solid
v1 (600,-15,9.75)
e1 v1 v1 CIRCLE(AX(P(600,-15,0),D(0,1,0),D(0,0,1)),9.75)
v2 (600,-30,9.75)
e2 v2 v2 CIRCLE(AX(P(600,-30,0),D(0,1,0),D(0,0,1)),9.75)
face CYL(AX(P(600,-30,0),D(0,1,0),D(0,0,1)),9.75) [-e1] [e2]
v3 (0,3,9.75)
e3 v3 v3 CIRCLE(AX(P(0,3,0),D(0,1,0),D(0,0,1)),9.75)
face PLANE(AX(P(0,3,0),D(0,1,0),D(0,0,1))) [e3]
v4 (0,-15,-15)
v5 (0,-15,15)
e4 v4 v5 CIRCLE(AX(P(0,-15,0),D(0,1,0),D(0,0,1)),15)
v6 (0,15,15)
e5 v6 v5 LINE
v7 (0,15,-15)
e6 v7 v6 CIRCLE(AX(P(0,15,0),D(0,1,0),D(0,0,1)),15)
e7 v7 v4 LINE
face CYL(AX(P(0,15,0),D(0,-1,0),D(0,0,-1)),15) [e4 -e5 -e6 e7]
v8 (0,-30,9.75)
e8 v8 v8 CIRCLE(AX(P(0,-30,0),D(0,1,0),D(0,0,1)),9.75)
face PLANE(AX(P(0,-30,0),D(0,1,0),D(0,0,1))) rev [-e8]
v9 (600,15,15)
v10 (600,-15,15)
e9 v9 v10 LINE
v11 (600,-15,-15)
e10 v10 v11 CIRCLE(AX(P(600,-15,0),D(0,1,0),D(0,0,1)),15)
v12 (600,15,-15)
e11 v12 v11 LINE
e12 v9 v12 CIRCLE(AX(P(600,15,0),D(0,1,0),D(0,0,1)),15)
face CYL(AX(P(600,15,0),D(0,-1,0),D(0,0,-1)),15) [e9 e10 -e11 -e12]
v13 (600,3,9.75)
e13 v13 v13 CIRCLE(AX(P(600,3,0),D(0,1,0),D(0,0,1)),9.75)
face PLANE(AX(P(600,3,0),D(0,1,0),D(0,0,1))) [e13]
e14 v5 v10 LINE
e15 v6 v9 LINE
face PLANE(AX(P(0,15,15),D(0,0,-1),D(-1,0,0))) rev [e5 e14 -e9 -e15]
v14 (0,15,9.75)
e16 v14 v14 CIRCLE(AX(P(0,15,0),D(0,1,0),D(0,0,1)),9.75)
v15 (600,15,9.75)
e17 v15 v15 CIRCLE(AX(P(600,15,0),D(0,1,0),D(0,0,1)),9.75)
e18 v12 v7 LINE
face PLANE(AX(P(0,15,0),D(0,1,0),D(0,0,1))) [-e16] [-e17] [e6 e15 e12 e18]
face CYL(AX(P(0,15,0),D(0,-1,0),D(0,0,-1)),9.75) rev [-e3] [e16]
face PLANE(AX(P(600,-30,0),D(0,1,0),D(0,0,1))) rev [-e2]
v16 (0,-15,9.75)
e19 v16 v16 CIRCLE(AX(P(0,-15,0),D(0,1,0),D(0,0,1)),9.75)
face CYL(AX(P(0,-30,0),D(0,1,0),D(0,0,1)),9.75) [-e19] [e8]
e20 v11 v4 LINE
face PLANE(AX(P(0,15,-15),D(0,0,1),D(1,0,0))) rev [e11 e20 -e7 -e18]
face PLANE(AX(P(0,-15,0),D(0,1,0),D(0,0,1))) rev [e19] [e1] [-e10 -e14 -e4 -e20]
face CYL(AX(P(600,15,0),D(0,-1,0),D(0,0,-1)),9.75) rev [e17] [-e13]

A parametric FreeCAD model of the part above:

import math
import FreeCAD as App
import Part
import Sketcher

doc = App.newDocument("Part")
body = doc.addObject("PartDesign::Body", "Body")

# Sketch on XZ plane
sketch1 = body.newObject("Sketcher::SketchObject", "Sketch")
sketch1.AttachmentSupport = (doc.getObject("XZ_Plane"), [""])
sketch1.MapMode = "FlatFace"
sketch1.addGeometry([
    Part.LineSegment(App.Vector(600, -15, 0), App.Vector(0, -15, 0)),
    Part.ArcOfCircle(Part.Circle(App.Vector(0, 0, 0), App.Vector(0, 0, 1), 15), math.radians(90), math.radians(270)),
    Part.LineSegment(App.Vector(0, 15, 0), App.Vector(600, 15, 0)),
    Part.ArcOfCircle(Part.Circle(App.Vector(600, 0, 0), App.Vector(0, 0, 1), 15), math.radians(-90), math.radians(90)),
], False)
sketch1.addConstraint([
    Sketcher.Constraint("Tangent", 0, 2, 1, 2),
    Sketcher.Constraint("Tangent", 1, 1, 2, 1),
    Sketcher.Constraint("Tangent", 2, 2, 3, 2),
    Sketcher.Constraint("Tangent", 3, 1, 0, 1),
    Sketcher.Constraint("Horizontal", 0),
    Sketcher.Constraint("Horizontal", 2),
    Sketcher.Constraint("Coincident", 1, 3, -1, 1),
    Sketcher.Constraint("Radius", 1, 15.0),
    Sketcher.Constraint("DistanceX", 0, 2, 0, 1, 600.0),
])
pad1 = body.newObject("PartDesign::Pad", "Pad")
pad1.Profile = sketch1
pad1.Length = 30
pad1.Midplane = True

# Sketch on XZ plane
sketch2 = body.newObject("Sketcher::SketchObject", "Sketch001")
sketch2.AttachmentSupport = (doc.getObject("XZ_Plane"), [""])
sketch2.MapMode = "FlatFace"
sketch2.addGeometry([
    Part.Circle(App.Vector(0, 0, 0), App.Vector(0, 0, 1), 10),
    Part.Circle(App.Vector(600, 0, 0), App.Vector(0, 0, 1), 10),
], False)
sketch2.addConstraint([
    Sketcher.Constraint("Coincident", 0, 3, -1, 1),
    Sketcher.Constraint("Equal", 0, 1),
    Sketcher.Constraint("PointOnObject", 1, 3, -1),
    Sketcher.Constraint("Diameter", 0, 19.5),
    Sketcher.Constraint("DistanceX", -1, 1, 1, 3, 600.0),
])
pocket1 = body.newObject("PartDesign::Pocket", "Pocket")
pocket1.Profile = sketch2
pocket1.Type = "ThroughAll"

# Sketch on XZ plane
sketch3 = body.newObject("Sketcher::SketchObject", "Sketch002")
sketch3.AttachmentSupport = (doc.getObject("XZ_Plane"), [""])
sketch3.MapMode = "FlatFace"
sketch3.AttachmentOffset = App.Placement(App.Vector(0, 0, 30), App.Rotation())
sketch3.addGeometry([
    Part.Circle(App.Vector(0, 0, 0), App.Vector(0, 0, 1), 10),
    Part.Circle(App.Vector(600, 0, 0), App.Vector(0, 0, 1), 10),
], False)
sketch3.addConstraint([
    Sketcher.Constraint("Coincident", 0, 3, -1, 1),
    Sketcher.Constraint("Equal", 0, 1),
    Sketcher.Constraint("PointOnObject", 1, 3, -1),
    Sketcher.Constraint("Diameter", 0, 19.5),
    Sketcher.Constraint("DistanceX", -1, 1, 1, 3, 600.0),
])
pad2 = body.newObject("PartDesign::Pad", "Pad001")
pad2.Profile = sketch3
pad2.Length = 30
pad2.Reversed = True

# Sketch on XZ plane
sketch4 = body.newObject("Sketcher::SketchObject", "Sketch003")
sketch4.AttachmentSupport = (doc.getObject("XZ_Plane"), [""])
sketch4.MapMode = "FlatFace"
sketch4.addGeometry([
    Part.Circle(App.Vector(0, 0, 0), App.Vector(0, 0, 1), 10),
    Part.Circle(App.Vector(600, 0, 0), App.Vector(0, 0, 1), 10),
], False)
sketch4.addConstraint([
    Sketcher.Constraint("Coincident", 0, 3, -1, 1),
    Sketcher.Constraint("Equal", 0, 1),
    Sketcher.Constraint("PointOnObject", 1, 3, -1),
    Sketcher.Constraint("Diameter", 0, 19.5),
    Sketcher.Constraint("DistanceX", -1, 1, 1, 3, 600.0),
])
pad3 = body.newObject("PartDesign::Pad", "Pad002")
pad3.Profile = sketch4
pad3.Length = 3
pad3.Reversed = True

doc.recompute()
